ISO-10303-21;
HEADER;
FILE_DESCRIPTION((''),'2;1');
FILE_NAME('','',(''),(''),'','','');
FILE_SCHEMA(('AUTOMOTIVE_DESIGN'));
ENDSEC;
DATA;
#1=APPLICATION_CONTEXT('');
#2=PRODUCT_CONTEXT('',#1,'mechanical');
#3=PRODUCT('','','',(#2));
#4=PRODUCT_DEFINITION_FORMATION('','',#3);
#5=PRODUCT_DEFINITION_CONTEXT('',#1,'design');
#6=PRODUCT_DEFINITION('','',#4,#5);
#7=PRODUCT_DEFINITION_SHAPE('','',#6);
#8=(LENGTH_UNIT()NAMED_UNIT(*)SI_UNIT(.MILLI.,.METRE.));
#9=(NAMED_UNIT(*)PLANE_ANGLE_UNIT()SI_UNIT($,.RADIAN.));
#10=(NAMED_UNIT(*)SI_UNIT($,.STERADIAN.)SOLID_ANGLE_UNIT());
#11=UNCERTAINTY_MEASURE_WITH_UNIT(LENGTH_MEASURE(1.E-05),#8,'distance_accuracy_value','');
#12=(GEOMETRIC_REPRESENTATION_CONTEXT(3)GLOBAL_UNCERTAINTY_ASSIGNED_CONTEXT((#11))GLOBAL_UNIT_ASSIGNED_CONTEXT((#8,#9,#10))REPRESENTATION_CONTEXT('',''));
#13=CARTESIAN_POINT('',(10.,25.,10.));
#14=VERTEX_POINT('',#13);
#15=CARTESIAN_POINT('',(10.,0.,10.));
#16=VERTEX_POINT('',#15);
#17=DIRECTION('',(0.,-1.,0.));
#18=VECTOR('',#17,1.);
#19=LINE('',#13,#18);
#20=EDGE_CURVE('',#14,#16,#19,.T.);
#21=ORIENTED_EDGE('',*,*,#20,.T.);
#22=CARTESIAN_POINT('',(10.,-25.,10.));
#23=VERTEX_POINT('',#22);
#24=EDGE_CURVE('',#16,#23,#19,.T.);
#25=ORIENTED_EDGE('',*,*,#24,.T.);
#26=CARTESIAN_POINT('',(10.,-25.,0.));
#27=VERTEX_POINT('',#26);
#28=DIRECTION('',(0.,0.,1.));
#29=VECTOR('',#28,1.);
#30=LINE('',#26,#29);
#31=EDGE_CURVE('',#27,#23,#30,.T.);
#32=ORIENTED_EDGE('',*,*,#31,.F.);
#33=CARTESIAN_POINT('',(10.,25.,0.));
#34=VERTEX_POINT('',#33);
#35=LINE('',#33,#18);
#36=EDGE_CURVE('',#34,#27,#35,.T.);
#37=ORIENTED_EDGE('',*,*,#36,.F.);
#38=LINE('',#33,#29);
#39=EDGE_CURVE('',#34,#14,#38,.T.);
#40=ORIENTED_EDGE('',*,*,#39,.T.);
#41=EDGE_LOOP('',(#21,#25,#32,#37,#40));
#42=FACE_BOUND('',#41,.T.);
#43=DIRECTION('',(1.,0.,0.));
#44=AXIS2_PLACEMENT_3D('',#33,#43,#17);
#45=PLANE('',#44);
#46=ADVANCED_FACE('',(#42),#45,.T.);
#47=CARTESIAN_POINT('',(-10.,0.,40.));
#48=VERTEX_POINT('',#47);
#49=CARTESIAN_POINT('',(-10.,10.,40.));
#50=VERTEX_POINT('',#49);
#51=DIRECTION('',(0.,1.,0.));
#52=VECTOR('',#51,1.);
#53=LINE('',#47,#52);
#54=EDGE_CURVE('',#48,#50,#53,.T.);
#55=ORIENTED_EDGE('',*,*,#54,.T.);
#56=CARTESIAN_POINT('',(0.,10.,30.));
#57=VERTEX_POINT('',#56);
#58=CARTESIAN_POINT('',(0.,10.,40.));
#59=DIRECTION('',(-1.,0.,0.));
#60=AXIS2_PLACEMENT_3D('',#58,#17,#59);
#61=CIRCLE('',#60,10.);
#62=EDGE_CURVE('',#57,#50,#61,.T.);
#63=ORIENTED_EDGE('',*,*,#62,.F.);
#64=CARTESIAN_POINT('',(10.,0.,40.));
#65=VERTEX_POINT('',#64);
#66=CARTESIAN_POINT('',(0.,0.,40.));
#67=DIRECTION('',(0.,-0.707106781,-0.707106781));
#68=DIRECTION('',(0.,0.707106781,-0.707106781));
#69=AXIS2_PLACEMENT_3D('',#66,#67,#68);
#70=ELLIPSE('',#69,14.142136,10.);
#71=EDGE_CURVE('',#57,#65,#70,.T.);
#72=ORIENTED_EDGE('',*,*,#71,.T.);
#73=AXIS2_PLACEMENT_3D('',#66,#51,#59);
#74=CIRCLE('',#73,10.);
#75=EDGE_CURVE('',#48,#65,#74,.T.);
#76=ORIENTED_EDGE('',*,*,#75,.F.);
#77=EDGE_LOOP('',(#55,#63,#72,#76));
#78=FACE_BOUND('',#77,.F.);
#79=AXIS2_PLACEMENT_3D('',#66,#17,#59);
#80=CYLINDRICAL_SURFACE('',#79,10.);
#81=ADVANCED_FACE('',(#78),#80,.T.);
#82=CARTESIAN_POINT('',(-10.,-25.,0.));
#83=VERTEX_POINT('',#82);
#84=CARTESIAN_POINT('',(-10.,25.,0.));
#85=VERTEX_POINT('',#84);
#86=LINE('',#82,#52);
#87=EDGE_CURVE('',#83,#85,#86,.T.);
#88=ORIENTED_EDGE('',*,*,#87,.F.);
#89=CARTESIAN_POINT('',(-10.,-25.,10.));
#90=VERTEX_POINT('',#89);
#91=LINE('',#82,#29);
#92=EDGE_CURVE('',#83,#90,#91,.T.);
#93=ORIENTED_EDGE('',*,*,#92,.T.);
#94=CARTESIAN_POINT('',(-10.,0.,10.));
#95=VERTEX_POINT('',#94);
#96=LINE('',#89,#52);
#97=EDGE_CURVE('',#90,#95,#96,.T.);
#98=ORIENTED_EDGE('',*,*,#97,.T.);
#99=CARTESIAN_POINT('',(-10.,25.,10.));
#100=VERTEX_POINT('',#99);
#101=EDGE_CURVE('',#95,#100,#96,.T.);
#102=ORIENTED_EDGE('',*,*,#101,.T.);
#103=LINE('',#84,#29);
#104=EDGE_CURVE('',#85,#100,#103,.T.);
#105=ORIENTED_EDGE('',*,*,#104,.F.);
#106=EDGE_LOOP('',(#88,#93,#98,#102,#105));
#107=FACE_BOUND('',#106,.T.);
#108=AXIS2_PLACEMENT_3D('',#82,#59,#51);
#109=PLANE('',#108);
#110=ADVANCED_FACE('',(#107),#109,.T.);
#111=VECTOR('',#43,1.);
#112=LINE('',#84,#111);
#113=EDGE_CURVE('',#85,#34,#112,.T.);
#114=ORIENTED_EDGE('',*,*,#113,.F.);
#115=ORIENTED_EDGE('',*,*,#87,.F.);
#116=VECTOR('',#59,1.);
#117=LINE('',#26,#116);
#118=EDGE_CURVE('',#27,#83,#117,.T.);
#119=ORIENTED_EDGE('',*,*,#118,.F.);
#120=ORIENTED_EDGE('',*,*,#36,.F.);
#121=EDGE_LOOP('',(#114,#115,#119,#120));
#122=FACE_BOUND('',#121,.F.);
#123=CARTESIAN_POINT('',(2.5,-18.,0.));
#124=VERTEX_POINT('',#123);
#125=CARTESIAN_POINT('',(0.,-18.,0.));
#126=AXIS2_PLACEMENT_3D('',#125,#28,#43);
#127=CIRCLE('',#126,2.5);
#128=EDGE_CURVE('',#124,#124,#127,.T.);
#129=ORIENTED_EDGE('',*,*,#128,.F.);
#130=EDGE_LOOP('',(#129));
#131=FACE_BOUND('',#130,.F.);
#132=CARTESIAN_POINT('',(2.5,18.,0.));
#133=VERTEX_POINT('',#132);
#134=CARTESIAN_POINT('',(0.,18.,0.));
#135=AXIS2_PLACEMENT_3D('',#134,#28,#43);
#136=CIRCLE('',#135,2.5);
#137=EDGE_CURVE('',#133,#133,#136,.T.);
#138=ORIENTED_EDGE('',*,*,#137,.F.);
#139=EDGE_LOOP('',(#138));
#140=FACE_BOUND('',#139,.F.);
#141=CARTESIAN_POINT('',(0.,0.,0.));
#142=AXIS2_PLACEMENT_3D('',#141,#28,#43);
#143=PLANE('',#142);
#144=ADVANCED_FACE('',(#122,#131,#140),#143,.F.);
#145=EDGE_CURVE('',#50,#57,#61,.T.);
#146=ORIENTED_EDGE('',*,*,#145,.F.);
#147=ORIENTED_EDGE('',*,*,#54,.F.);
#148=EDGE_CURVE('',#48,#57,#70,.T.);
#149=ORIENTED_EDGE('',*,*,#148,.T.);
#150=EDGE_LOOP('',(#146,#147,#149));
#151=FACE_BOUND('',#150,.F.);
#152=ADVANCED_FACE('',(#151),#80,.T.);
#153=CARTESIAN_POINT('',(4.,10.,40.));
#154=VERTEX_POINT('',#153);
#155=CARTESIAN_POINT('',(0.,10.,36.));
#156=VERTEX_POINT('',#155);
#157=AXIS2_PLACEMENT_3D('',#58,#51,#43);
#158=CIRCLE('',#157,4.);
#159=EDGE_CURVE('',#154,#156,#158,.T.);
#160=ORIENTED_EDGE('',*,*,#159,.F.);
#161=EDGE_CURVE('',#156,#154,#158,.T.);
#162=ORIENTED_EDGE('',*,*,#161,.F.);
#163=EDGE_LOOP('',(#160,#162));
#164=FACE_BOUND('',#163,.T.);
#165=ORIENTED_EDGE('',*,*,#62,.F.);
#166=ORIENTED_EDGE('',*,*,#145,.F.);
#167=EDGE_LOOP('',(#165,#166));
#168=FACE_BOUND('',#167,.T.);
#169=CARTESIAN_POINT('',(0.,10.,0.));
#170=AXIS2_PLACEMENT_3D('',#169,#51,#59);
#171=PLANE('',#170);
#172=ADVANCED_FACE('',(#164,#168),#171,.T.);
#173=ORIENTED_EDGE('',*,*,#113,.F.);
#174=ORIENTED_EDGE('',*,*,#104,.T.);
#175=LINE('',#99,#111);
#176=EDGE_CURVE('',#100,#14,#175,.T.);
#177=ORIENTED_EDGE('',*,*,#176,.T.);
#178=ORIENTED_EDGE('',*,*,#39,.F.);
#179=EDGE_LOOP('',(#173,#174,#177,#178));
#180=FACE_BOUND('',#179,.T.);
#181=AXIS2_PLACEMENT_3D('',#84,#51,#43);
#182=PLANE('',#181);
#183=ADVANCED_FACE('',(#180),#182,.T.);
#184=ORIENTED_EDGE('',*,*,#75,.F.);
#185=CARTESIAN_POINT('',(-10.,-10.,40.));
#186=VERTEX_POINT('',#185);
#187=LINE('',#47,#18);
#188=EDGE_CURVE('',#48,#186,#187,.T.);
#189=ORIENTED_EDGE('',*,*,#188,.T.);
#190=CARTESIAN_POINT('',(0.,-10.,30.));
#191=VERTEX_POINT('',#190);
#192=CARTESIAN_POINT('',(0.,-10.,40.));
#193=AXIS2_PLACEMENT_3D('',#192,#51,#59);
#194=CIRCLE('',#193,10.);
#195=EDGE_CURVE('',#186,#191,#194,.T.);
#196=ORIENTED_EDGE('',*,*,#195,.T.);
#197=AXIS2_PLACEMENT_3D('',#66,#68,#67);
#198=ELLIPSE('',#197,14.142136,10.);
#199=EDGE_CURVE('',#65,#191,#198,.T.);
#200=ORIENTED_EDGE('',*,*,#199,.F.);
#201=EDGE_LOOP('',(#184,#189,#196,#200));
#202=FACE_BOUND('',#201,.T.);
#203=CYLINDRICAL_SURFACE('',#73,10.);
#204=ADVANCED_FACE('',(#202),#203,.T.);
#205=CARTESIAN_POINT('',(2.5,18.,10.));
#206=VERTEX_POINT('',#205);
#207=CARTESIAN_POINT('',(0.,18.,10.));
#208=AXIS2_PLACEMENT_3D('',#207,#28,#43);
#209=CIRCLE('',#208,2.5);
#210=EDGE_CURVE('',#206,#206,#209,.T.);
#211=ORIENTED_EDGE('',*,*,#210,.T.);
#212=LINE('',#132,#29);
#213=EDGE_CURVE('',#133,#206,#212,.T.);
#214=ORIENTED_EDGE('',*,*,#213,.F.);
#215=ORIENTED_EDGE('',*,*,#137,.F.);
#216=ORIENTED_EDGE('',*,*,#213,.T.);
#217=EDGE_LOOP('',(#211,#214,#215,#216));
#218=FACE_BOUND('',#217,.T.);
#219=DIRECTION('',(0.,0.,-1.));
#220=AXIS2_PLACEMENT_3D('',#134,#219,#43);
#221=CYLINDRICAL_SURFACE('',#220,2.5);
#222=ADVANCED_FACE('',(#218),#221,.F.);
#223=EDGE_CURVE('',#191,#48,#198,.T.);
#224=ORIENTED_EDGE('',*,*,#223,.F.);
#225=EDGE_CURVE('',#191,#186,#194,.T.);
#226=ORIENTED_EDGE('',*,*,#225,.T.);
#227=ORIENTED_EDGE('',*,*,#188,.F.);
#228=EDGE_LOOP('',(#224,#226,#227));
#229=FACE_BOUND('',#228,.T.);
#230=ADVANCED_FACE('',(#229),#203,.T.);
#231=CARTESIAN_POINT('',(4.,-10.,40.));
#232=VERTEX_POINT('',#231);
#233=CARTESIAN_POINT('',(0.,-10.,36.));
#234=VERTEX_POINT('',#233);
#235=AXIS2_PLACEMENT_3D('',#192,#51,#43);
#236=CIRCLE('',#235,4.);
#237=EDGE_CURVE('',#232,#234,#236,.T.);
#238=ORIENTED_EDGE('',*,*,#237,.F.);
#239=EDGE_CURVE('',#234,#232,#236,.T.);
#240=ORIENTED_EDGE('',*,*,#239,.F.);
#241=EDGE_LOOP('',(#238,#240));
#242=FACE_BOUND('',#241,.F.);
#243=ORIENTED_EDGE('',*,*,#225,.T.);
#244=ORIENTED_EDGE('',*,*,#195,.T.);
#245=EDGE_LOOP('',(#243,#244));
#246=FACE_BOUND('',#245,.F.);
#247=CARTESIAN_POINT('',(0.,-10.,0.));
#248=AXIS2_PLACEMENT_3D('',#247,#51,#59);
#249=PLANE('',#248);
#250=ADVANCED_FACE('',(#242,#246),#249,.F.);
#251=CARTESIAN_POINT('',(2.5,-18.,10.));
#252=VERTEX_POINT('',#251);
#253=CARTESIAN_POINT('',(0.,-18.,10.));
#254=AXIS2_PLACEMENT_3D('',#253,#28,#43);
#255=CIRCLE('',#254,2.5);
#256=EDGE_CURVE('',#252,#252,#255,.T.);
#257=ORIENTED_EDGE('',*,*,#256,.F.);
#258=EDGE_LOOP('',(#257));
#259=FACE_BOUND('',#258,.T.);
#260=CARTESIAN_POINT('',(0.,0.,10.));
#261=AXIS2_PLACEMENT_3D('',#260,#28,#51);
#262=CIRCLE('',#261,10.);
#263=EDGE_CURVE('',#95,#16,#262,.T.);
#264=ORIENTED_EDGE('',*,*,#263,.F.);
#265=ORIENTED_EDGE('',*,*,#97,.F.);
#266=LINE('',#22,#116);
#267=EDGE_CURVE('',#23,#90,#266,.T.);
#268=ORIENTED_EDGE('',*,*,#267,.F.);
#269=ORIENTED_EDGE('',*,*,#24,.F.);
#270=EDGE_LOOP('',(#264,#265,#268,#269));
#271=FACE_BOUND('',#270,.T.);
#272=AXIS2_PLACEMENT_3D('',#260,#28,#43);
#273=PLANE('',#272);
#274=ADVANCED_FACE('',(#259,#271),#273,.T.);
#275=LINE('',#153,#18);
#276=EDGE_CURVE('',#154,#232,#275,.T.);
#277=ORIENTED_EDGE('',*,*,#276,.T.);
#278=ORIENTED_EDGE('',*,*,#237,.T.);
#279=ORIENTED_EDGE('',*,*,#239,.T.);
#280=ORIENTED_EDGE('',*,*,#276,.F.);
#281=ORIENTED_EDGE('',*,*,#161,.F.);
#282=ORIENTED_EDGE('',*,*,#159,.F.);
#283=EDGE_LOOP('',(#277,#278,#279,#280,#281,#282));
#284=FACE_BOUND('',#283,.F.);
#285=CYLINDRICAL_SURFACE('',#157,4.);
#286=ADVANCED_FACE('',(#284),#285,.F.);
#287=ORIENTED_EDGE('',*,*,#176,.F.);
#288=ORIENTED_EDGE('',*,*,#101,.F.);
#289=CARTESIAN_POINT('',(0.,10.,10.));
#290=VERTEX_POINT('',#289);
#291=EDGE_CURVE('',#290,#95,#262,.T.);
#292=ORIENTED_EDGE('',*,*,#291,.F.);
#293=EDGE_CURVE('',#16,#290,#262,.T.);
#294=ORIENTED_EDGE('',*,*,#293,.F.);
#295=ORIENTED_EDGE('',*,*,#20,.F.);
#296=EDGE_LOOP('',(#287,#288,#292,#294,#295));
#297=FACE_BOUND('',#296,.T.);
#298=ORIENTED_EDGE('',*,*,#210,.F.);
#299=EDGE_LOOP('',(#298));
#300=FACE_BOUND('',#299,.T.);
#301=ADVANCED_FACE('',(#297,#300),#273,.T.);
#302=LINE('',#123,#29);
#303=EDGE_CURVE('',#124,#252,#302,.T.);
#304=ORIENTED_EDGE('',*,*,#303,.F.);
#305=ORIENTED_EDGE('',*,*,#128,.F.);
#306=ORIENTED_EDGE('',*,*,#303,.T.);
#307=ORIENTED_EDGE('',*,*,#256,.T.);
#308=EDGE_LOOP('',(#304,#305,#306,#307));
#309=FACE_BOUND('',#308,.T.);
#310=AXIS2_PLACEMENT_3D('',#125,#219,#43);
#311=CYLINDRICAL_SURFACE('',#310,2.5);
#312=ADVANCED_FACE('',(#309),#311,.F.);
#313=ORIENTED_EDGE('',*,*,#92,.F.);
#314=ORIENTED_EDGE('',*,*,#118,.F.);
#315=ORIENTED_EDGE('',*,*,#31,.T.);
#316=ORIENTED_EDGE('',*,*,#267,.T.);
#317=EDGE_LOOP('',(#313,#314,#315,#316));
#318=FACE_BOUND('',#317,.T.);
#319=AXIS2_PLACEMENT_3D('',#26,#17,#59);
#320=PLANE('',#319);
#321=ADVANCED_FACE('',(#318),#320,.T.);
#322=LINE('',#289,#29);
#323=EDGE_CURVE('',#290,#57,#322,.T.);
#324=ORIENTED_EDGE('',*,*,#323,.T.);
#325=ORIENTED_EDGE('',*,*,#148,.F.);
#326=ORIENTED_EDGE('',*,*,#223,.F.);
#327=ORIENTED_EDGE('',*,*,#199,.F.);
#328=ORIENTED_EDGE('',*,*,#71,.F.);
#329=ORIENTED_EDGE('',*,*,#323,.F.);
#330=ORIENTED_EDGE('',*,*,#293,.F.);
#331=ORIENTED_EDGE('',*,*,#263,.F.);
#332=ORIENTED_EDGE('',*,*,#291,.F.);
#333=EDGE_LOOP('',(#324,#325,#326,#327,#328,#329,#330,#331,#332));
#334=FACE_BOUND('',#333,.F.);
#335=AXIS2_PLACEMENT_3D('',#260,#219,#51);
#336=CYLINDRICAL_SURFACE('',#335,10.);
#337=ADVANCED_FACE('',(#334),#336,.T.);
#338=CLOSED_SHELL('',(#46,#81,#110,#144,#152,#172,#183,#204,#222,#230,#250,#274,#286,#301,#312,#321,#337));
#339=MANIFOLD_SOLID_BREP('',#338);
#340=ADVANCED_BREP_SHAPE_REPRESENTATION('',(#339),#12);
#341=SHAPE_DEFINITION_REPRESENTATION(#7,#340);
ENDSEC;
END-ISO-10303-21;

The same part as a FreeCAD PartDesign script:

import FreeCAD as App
import Part
import Sketcher

V = App.Vector


def add_polygon(sketch, points):
    """Adds a closed chain of lines whose ends are joined by coincident constraints."""
    first, n = sketch.GeometryCount, len(points)
    for a, b in zip(points, points[1:] + points[:1]):
        sketch.addGeometry(Part.LineSegment(App.Vector(*a, 0), App.Vector(*b, 0)), False)
    for i in range(n):
        sketch.addConstraint(Sketcher.Constraint("Coincident", first + i, 2, first + (i + 1) % n, 1))

doc = App.newDocument("Part")
params = doc.addObject("Spreadsheet::Sheet", "Params")
for row, (alias, value) in enumerate([
    ("sketch1_diameter", "5 mm"),
    ("sketch1_width", "20 mm"),
    ("sketch1_height", "50 mm"),
    ("pad1_length", "10 mm"),
    ("sketch2_diameter", "20 mm"),
    ("pad2_length", "30 mm"),
    ("sketch3_diameter", "20 mm"),
    ("pad3_length", "20 mm"),
    ("sketch4_diameter", "8 mm"),
], start=1):
    params.set(f"A{row}", alias)
    params.set(f"B{row}", "=" + value)
    params.setAlias(f"B{row}", alias)

body = doc.addObject("PartDesign::Body", "Body")

# Sketch on XY plane
sketch1 = body.newObject("Sketcher::SketchObject", "Sketch")
sketch1.AttachmentSupport = (doc.getObject("XY_Plane"), [""])
sketch1.MapMode = "FlatFace"
add_polygon(sketch1, [(10, 25), (-10, 25), (-10, -25), (10, -25)])  # lines 0-3
sketch1.addGeometry(Part.Circle(V(0, -18, 0), V(0, 0, 1), 2.5), False)  # 4
sketch1.addGeometry(Part.Circle(V(0, 18, 0), V(0, 0, 1), 2.5), False)  # 5
sketch1.addConstraint([
    Sketcher.Constraint("Horizontal", 0),
    Sketcher.Constraint("Vertical", 1),
    Sketcher.Constraint("Horizontal", 2),
    Sketcher.Constraint("Vertical", 3),
    Sketcher.Constraint("Equal", 4, 5),
    Sketcher.Constraint("Symmetric", 4, 3, 5, 3, -1, 1),
    Sketcher.Constraint("Symmetric", 0, 2, 2, 2, -1, 1),
    Sketcher.Constraint("PointOnObject", 4, 3, -2),
    Sketcher.Constraint("Diameter", 4, 5.0),
    Sketcher.Constraint("DistanceX", 0, 2, 0, 1, 20.0),
    Sketcher.Constraint("DistanceY", 1, 2, 1, 1, 50.0),
    Sketcher.Constraint("DistanceY", 5, 3, 0, 2, 7.0),
])
sketch1.setExpression("Constraints[12]", "Params.sketch1_diameter")
sketch1.setExpression("Constraints[13]", "Params.sketch1_width")
sketch1.setExpression("Constraints[14]", "Params.sketch1_height")
pad1 = body.newObject("PartDesign::Pad", "Pad")
pad1.Profile = sketch1
pad1.setExpression("Length", "Params.pad1_length")

# Sketch on XY plane
sketch2 = body.newObject("Sketcher::SketchObject", "Sketch001")
sketch2.AttachmentSupport = (doc.getObject("XY_Plane"), [""])
sketch2.MapMode = "FlatFace"
sketch2.AttachmentOffset = App.Placement(V(0, 0, 10), App.Rotation())
sketch2.addGeometry(Part.Circle(V(0, 0, 0), V(0, 0, 1), 10), False)
sketch2.addConstraint([
    Sketcher.Constraint("Coincident", 0, 3, -1, 1),
    Sketcher.Constraint("Diameter", 0, 20.0),
])
sketch2.setExpression("Constraints[1]", "Params.sketch2_diameter")
pad2 = body.newObject("PartDesign::Pad", "Pad001")
pad2.Profile = sketch2
pad2.setExpression("Length", "Params.pad2_length")

# Sketch on XZ plane
sketch3 = body.newObject("Sketcher::SketchObject", "Sketch002")
sketch3.AttachmentSupport = (doc.getObject("XZ_Plane"), [""])
sketch3.MapMode = "FlatFace"
sketch3.addGeometry(Part.Circle(V(0, 40, 0), V(0, 0, 1), 10), False)
sketch3.addConstraint([
    Sketcher.Constraint("PointOnObject", 0, 3, -2),
    Sketcher.Constraint("Diameter", 0, 20.0),
    Sketcher.Constraint("DistanceY", -1, 1, 0, 3, 40.0),
])
sketch3.setExpression("Constraints[1]", "Params.sketch3_diameter")
pad3 = body.newObject("PartDesign::Pad", "Pad002")
pad3.Profile = sketch3
pad3.setExpression("Length", "Params.pad3_length")
pad3.Midplane = True

# Sketch on XZ plane
sketch4 = body.newObject("Sketcher::SketchObject", "Sketch003")
sketch4.AttachmentSupport = (doc.getObject("XZ_Plane"), [""])
sketch4.MapMode = "FlatFace"
sketch4.AttachmentOffset = App.Placement(V(0, 0, -10), App.Rotation())
sketch4.addGeometry(Part.Circle(V(0, 40, 0), V(0, 0, 1), 4), False)
sketch4.addConstraint([
    Sketcher.Constraint("PointOnObject", 0, 3, -2),
    Sketcher.Constraint("Diameter", 0, 8.0),
    Sketcher.Constraint("DistanceY", -1, 1, 0, 3, 40.0),
])
sketch4.setExpression("Constraints[1]", "Params.sketch4_diameter")
pocket1 = body.newObject("PartDesign::Pocket", "Pocket")
pocket1.Profile = sketch4
pocket1.Type = "ThroughAll"
pocket1.Reversed = True

doc.recompute()
